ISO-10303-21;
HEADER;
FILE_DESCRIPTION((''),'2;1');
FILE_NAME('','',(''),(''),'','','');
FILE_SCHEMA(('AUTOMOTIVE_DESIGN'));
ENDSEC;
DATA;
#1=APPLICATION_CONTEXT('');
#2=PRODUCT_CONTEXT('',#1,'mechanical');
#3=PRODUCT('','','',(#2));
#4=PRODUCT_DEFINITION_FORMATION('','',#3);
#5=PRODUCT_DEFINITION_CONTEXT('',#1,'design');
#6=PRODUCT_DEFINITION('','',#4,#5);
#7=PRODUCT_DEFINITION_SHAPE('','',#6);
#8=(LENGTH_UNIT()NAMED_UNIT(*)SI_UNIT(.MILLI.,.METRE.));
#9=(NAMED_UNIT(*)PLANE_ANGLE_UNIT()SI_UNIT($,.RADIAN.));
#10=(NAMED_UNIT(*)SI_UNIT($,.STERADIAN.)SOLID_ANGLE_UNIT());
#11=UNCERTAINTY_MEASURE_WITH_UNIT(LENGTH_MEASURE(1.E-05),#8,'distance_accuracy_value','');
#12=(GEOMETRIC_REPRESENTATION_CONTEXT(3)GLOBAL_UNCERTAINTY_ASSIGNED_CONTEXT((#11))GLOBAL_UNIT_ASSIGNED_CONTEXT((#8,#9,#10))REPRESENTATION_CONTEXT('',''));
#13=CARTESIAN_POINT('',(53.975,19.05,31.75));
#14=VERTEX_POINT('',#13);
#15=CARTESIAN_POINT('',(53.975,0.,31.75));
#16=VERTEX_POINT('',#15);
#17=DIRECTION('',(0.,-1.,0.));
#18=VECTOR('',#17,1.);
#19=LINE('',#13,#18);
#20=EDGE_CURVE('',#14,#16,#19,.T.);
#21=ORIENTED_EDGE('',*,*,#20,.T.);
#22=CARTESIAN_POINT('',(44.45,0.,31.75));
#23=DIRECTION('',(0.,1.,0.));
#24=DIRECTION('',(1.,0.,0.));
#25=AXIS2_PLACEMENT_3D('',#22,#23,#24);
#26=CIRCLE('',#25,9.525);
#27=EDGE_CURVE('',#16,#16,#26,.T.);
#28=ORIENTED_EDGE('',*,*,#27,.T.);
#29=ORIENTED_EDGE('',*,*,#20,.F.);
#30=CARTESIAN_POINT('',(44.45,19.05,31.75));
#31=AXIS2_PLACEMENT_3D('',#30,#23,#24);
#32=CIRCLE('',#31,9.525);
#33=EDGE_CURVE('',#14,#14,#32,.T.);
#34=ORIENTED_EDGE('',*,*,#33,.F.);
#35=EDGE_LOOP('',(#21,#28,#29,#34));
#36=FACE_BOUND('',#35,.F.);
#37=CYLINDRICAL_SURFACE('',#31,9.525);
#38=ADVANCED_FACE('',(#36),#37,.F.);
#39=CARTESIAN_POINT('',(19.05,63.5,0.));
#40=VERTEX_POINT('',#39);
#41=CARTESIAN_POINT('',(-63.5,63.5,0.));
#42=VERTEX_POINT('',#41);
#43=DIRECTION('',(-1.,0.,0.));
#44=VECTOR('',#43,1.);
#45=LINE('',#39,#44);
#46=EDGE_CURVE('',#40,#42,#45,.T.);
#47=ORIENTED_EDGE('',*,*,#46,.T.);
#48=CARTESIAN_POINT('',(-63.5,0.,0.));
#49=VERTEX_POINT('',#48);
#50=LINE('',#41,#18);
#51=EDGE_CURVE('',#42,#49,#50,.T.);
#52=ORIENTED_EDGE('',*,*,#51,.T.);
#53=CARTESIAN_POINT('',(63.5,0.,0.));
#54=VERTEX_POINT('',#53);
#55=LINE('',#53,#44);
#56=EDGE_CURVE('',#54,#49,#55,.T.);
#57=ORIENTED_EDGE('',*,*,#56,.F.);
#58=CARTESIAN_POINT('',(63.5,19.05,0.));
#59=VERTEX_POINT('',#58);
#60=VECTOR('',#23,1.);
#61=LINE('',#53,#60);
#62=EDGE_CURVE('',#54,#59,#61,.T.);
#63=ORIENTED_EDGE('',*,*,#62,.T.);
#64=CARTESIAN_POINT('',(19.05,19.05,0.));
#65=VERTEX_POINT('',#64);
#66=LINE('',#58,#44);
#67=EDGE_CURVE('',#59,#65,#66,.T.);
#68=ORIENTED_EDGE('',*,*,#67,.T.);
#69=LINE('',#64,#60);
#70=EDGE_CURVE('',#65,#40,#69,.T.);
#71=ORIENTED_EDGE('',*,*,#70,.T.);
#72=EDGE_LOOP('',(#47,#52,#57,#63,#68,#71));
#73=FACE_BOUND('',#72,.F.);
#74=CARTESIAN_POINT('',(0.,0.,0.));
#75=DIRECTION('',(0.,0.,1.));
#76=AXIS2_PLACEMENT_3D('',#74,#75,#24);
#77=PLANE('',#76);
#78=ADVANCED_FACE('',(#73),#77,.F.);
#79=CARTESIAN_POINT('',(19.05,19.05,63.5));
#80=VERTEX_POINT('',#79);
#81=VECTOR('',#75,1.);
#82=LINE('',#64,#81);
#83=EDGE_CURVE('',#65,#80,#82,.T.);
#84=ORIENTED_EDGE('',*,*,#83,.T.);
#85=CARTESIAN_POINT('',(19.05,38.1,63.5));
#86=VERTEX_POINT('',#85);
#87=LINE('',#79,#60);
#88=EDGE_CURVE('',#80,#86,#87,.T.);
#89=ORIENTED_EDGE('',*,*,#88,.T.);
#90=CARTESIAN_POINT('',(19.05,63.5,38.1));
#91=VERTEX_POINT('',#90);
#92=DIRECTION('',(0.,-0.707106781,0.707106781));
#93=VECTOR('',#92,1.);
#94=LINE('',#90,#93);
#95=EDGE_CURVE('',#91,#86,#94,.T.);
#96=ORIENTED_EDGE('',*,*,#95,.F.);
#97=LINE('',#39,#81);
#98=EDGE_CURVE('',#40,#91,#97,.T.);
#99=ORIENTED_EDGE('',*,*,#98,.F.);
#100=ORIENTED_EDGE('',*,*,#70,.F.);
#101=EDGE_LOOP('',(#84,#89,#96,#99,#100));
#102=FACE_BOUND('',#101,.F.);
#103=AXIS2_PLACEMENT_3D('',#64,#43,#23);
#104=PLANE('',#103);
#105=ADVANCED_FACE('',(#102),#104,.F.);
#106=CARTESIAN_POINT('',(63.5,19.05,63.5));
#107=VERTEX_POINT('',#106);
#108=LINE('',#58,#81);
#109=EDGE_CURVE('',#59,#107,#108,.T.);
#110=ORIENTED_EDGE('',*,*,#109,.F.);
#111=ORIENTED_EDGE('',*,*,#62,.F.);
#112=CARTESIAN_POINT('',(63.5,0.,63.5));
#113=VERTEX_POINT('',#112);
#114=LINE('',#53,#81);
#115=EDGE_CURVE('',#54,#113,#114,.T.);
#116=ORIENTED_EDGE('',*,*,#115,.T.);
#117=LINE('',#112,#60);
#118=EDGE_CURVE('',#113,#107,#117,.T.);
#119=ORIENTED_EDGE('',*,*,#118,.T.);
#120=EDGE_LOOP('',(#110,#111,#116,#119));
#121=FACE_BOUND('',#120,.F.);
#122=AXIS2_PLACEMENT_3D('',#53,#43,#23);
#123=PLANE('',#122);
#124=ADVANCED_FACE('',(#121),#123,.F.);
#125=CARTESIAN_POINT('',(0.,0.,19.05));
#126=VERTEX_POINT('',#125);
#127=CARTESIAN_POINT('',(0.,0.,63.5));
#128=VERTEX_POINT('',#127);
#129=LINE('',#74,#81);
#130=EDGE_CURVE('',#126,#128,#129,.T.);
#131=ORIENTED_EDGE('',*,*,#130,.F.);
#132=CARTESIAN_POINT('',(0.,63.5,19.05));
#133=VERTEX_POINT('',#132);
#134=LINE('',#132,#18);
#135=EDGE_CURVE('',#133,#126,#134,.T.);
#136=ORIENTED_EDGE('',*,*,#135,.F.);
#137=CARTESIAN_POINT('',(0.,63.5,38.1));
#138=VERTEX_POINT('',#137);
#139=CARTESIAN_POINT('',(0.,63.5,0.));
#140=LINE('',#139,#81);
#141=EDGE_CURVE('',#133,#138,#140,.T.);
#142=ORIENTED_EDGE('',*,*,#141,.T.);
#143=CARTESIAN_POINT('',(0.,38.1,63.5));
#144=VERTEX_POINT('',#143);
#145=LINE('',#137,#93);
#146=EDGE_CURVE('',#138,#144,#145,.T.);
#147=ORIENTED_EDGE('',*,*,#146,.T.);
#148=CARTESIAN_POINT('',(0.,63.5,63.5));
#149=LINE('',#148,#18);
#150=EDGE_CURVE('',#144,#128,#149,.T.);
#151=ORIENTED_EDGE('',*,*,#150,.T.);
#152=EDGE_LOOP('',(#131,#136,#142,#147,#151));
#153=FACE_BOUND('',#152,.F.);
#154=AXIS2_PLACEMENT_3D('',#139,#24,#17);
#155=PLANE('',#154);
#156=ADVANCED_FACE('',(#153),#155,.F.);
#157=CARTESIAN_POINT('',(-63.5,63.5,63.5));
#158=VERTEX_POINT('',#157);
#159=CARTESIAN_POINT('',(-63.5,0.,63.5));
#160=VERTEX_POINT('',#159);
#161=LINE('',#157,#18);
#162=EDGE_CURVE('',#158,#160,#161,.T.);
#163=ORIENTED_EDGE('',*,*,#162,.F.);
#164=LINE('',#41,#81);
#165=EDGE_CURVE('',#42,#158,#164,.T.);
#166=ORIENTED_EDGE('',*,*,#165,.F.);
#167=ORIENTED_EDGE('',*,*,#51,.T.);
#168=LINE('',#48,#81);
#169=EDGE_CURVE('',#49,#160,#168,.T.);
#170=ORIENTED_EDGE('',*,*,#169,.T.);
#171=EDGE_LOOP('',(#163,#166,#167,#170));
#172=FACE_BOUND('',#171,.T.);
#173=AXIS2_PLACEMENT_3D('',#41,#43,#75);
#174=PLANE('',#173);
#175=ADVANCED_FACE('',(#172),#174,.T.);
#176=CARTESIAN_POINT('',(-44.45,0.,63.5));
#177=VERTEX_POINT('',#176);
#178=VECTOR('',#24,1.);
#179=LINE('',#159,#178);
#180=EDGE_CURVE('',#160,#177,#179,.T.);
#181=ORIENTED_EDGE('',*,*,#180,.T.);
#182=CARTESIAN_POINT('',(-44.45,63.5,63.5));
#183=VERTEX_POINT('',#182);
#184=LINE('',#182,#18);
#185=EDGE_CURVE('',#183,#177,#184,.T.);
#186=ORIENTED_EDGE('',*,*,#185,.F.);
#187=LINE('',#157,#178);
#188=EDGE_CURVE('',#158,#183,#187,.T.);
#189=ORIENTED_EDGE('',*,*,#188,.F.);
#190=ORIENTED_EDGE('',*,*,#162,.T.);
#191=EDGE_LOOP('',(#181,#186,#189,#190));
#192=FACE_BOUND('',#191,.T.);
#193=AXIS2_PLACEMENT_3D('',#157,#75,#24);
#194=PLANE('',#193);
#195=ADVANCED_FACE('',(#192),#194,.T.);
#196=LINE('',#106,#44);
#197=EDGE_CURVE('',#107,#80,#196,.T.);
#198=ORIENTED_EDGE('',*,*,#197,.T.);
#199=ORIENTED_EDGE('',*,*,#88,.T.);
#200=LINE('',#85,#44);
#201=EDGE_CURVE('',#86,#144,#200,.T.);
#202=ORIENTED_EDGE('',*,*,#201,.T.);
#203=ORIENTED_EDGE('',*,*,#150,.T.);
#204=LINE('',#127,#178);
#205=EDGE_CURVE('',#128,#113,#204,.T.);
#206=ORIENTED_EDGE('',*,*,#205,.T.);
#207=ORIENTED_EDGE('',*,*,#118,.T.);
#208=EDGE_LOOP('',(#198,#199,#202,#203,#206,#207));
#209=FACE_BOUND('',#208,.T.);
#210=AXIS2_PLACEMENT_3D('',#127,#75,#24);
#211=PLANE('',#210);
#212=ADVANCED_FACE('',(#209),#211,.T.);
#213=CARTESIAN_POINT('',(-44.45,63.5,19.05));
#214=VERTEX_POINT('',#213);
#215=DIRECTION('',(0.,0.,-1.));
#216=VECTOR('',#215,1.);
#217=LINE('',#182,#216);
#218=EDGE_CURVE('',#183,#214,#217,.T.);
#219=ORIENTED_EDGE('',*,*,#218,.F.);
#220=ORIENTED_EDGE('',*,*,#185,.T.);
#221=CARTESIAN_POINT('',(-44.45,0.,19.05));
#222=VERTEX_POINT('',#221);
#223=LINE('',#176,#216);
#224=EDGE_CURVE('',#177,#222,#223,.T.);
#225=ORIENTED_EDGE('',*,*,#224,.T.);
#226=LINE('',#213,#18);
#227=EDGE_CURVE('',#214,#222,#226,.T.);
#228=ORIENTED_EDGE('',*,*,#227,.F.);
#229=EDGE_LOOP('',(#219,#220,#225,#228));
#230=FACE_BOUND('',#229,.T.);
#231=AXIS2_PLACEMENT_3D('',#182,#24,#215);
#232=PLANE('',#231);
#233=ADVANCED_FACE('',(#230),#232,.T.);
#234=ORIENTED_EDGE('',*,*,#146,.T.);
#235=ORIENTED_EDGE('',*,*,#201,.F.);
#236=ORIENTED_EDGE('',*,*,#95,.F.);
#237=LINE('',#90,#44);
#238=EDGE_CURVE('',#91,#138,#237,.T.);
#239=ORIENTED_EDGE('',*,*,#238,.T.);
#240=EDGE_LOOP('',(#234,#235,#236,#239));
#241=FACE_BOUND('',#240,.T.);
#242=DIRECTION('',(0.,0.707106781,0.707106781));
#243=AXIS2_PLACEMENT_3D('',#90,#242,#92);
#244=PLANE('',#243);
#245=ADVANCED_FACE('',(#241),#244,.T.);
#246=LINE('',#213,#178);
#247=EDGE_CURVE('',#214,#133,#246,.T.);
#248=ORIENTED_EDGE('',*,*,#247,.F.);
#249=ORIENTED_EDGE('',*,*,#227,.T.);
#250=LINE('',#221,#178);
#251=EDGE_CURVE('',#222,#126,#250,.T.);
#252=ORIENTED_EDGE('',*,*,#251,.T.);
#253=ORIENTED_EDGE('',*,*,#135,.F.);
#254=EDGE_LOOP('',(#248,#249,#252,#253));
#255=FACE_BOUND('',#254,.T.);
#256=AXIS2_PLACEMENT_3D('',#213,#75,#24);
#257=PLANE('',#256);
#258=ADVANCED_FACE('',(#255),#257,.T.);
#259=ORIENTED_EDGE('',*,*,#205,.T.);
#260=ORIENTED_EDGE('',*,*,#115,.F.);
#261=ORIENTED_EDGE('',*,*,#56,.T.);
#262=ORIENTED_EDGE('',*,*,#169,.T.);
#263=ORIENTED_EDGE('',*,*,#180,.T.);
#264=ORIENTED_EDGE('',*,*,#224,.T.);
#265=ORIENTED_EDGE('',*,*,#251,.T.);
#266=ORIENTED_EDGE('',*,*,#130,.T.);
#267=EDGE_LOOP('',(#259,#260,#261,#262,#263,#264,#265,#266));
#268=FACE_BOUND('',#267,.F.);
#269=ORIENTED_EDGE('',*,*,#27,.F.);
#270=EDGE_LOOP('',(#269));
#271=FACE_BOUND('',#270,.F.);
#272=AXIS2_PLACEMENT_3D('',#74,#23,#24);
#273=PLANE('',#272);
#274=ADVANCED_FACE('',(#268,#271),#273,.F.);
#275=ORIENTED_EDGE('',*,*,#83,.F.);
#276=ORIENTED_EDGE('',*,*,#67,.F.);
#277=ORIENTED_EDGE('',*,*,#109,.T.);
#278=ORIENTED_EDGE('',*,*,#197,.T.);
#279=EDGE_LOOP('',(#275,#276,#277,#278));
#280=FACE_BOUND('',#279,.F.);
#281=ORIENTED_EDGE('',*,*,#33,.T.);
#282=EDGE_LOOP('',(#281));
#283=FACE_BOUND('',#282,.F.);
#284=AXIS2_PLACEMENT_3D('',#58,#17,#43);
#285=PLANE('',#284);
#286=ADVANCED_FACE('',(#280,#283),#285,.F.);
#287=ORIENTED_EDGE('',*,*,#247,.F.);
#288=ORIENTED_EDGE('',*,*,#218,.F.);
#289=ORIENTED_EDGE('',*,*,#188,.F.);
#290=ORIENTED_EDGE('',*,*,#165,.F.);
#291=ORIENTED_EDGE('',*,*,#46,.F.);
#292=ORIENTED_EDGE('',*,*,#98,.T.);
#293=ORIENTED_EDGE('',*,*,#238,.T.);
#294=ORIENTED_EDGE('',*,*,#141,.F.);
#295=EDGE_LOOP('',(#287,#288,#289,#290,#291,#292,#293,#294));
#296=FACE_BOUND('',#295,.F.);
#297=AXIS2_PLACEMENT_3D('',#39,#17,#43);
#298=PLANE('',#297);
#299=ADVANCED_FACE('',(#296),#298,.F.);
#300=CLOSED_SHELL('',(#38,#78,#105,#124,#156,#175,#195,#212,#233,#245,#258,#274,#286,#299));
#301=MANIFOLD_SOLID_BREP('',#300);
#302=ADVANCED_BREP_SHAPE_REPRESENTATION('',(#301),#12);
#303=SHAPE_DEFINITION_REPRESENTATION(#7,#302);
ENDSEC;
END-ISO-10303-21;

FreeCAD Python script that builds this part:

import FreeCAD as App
import Part
import Sketcher

V = App.Vector
Q = App.Units.Quantity


def add_polygon(sketch, points):
    """Adds a closed chain of lines whose ends are joined by coincident constraints."""
    first, n = sketch.GeometryCount, len(points)
    for a, b in zip(points, points[1:] + points[:1]):
        sketch.addGeometry(Part.LineSegment(App.Vector(*a, 0), App.Vector(*b, 0)), False)
    for i in range(n):
        sketch.addConstraint(Sketcher.Constraint("Coincident", first + i, 2, first + (i + 1) % n, 1))

doc = App.newDocument("Part")
body = doc.addObject("PartDesign::Body", "Body")

sketch1 = doc.addObject("Sketcher::SketchObject", "Sketch")
body.addObject(sketch1)
sketch1.AttachmentSupport = (doc.XY_Plane, [""])
sketch1.MapMode = "FlatFace"
add_polygon(sketch1, [(19, 64), (0, 64), (0, 0), (64, 0), (64, 19), (19, 19)])
sketch1.addConstraint(Sketcher.Constraint("Horizontal", 0))
sketch1.addConstraint(Sketcher.Constraint("Vertical", 1))
sketch1.addConstraint(Sketcher.Constraint("Horizontal", 2))
sketch1.addConstraint(Sketcher.Constraint("Vertical", 3))
sketch1.addConstraint(Sketcher.Constraint("Horizontal", 4))
sketch1.addConstraint(Sketcher.Constraint("Vertical", 5))
sketch1.addConstraint(Sketcher.Constraint("Coincident", 1, 2, -1, 1))
sketch1.addConstraint(Sketcher.Constraint("Equal", 2, 1))
sketch1.addConstraint(Sketcher.Constraint("Equal", 0, 3))
sketch1.addConstraint(Sketcher.Constraint("DistanceX", 2, 1, 2, 2, Q("2.5 in")))
sketch1.addConstraint(Sketcher.Constraint("DistanceX", 0, 2, 0, 1, Q("0.75 in")))
pad1 = doc.addObject("PartDesign::Pad", "Pad")
body.addObject(pad1)
pad1.Profile = sketch1
pad1.Length = Q("2.5 in")

sketch2 = doc.addObject("Sketcher::SketchObject", "Sketch001")
body.addObject(sketch2)
sketch2.AttachmentSupport = (doc.XZ_Plane, [""])
sketch2.MapMode = "FlatFace"
sketch2.AttachmentOffset = App.Placement(V(0, 0, -2.5 * 25.4), App.Rotation())
add_polygon(sketch2, [(0, 19), (0, 0), (-64, 0), (-64, 64), (-44, 64), (-44, 19)])
sketch2.addConstraint(Sketcher.Constraint("Vertical", 0))
sketch2.addConstraint(Sketcher.Constraint("Horizontal", 1))
sketch2.addConstraint(Sketcher.Constraint("Vertical", 2))
sketch2.addConstraint(Sketcher.Constraint("Horizontal", 3))
sketch2.addConstraint(Sketcher.Constraint("Vertical", 4))
sketch2.addConstraint(Sketcher.Constraint("Horizontal", 5))
sketch2.addConstraint(Sketcher.Constraint("Coincident", 0, 2, -1, 1))
sketch2.addConstraint(Sketcher.Constraint("Equal", 3, 0))
sketch2.addConstraint(Sketcher.Constraint("Equal", 1, 2))
sketch2.addConstraint(Sketcher.Constraint("DistanceX", 1, 2, 1, 1, Q("2.5 in")))
sketch2.addConstraint(Sketcher.Constraint("DistanceX", 3, 1, 3, 2, Q("0.75 in")))
pad2 = doc.addObject("PartDesign::Pad", "Pad001")
body.addObject(pad2)
pad2.Profile = sketch2
pad2.Length = Q("2.5 in")

sketch3 = doc.addObject("Sketcher::SketchObject", "Sketch002")
body.addObject(sketch3)
sketch3.AttachmentSupport = (doc.XZ_Plane, [""])
sketch3.MapMode = "FlatFace"
sketch3.AttachmentOffset = App.Placement(V(0, 0, -0.75 * 25.4), App.Rotation())
sketch3.addGeometry(Part.Circle(V(44, 32, 0), V(0, 0, 1), 10), False)
sketch3.addConstraint(Sketcher.Constraint("Diameter", 0, Q("0.75 in")))
sketch3.addConstraint(Sketcher.Constraint("DistanceY", -1, 1, 0, 3, Q("1.25 in")))
sketch3.addConstraint(Sketcher.Constraint("DistanceX", -1, 1, 0, 3, Q("1.75 in")))
pocket1 = doc.addObject("PartDesign::Pocket", "Pocket")
body.addObject(pocket1)
pocket1.Profile = sketch3
pocket1.Type = "ThroughAll"
pocket1.Reversed = True

sketch4 = doc.addObject("Sketcher::SketchObject", "Sketch003")
body.addObject(sketch4)
sketch4.AttachmentSupport = (doc.YZ_Plane, [""])
sketch4.MapMode = "FlatFace"
sketch4.AttachmentOffset = App.Placement(V(0, 0, 0.75 * 25.4), App.Rotation())
add_polygon(sketch4, [(64, 38), (64, 64), (38, 64)])
sketch4.addConstraint(Sketcher.Constraint("Vertical", 0))
sketch4.addConstraint(Sketcher.Constraint("Horizontal", 1))
sketch4.addConstraint(Sketcher.Constraint("Equal", 1, 0))
sketch4.addConstraint(Sketcher.Constraint("DistanceX", 1, 2, 1, 1, Q("1 in")))
sketch4.addConstraint(Sketcher.Constraint("DistanceX", -1, 1, 0, 2, Q("2.5 in")))
sketch4.addConstraint(Sketcher.Constraint("DistanceY", -1, 1, 0, 2, Q("2.5 in")))
pocket2 = doc.addObject("PartDesign::Pocket", "Pocket001")
body.addObject(pocket2)
pocket2.Profile = sketch4
pocket2.Length = Q("0.75 in")

doc.recompute()
